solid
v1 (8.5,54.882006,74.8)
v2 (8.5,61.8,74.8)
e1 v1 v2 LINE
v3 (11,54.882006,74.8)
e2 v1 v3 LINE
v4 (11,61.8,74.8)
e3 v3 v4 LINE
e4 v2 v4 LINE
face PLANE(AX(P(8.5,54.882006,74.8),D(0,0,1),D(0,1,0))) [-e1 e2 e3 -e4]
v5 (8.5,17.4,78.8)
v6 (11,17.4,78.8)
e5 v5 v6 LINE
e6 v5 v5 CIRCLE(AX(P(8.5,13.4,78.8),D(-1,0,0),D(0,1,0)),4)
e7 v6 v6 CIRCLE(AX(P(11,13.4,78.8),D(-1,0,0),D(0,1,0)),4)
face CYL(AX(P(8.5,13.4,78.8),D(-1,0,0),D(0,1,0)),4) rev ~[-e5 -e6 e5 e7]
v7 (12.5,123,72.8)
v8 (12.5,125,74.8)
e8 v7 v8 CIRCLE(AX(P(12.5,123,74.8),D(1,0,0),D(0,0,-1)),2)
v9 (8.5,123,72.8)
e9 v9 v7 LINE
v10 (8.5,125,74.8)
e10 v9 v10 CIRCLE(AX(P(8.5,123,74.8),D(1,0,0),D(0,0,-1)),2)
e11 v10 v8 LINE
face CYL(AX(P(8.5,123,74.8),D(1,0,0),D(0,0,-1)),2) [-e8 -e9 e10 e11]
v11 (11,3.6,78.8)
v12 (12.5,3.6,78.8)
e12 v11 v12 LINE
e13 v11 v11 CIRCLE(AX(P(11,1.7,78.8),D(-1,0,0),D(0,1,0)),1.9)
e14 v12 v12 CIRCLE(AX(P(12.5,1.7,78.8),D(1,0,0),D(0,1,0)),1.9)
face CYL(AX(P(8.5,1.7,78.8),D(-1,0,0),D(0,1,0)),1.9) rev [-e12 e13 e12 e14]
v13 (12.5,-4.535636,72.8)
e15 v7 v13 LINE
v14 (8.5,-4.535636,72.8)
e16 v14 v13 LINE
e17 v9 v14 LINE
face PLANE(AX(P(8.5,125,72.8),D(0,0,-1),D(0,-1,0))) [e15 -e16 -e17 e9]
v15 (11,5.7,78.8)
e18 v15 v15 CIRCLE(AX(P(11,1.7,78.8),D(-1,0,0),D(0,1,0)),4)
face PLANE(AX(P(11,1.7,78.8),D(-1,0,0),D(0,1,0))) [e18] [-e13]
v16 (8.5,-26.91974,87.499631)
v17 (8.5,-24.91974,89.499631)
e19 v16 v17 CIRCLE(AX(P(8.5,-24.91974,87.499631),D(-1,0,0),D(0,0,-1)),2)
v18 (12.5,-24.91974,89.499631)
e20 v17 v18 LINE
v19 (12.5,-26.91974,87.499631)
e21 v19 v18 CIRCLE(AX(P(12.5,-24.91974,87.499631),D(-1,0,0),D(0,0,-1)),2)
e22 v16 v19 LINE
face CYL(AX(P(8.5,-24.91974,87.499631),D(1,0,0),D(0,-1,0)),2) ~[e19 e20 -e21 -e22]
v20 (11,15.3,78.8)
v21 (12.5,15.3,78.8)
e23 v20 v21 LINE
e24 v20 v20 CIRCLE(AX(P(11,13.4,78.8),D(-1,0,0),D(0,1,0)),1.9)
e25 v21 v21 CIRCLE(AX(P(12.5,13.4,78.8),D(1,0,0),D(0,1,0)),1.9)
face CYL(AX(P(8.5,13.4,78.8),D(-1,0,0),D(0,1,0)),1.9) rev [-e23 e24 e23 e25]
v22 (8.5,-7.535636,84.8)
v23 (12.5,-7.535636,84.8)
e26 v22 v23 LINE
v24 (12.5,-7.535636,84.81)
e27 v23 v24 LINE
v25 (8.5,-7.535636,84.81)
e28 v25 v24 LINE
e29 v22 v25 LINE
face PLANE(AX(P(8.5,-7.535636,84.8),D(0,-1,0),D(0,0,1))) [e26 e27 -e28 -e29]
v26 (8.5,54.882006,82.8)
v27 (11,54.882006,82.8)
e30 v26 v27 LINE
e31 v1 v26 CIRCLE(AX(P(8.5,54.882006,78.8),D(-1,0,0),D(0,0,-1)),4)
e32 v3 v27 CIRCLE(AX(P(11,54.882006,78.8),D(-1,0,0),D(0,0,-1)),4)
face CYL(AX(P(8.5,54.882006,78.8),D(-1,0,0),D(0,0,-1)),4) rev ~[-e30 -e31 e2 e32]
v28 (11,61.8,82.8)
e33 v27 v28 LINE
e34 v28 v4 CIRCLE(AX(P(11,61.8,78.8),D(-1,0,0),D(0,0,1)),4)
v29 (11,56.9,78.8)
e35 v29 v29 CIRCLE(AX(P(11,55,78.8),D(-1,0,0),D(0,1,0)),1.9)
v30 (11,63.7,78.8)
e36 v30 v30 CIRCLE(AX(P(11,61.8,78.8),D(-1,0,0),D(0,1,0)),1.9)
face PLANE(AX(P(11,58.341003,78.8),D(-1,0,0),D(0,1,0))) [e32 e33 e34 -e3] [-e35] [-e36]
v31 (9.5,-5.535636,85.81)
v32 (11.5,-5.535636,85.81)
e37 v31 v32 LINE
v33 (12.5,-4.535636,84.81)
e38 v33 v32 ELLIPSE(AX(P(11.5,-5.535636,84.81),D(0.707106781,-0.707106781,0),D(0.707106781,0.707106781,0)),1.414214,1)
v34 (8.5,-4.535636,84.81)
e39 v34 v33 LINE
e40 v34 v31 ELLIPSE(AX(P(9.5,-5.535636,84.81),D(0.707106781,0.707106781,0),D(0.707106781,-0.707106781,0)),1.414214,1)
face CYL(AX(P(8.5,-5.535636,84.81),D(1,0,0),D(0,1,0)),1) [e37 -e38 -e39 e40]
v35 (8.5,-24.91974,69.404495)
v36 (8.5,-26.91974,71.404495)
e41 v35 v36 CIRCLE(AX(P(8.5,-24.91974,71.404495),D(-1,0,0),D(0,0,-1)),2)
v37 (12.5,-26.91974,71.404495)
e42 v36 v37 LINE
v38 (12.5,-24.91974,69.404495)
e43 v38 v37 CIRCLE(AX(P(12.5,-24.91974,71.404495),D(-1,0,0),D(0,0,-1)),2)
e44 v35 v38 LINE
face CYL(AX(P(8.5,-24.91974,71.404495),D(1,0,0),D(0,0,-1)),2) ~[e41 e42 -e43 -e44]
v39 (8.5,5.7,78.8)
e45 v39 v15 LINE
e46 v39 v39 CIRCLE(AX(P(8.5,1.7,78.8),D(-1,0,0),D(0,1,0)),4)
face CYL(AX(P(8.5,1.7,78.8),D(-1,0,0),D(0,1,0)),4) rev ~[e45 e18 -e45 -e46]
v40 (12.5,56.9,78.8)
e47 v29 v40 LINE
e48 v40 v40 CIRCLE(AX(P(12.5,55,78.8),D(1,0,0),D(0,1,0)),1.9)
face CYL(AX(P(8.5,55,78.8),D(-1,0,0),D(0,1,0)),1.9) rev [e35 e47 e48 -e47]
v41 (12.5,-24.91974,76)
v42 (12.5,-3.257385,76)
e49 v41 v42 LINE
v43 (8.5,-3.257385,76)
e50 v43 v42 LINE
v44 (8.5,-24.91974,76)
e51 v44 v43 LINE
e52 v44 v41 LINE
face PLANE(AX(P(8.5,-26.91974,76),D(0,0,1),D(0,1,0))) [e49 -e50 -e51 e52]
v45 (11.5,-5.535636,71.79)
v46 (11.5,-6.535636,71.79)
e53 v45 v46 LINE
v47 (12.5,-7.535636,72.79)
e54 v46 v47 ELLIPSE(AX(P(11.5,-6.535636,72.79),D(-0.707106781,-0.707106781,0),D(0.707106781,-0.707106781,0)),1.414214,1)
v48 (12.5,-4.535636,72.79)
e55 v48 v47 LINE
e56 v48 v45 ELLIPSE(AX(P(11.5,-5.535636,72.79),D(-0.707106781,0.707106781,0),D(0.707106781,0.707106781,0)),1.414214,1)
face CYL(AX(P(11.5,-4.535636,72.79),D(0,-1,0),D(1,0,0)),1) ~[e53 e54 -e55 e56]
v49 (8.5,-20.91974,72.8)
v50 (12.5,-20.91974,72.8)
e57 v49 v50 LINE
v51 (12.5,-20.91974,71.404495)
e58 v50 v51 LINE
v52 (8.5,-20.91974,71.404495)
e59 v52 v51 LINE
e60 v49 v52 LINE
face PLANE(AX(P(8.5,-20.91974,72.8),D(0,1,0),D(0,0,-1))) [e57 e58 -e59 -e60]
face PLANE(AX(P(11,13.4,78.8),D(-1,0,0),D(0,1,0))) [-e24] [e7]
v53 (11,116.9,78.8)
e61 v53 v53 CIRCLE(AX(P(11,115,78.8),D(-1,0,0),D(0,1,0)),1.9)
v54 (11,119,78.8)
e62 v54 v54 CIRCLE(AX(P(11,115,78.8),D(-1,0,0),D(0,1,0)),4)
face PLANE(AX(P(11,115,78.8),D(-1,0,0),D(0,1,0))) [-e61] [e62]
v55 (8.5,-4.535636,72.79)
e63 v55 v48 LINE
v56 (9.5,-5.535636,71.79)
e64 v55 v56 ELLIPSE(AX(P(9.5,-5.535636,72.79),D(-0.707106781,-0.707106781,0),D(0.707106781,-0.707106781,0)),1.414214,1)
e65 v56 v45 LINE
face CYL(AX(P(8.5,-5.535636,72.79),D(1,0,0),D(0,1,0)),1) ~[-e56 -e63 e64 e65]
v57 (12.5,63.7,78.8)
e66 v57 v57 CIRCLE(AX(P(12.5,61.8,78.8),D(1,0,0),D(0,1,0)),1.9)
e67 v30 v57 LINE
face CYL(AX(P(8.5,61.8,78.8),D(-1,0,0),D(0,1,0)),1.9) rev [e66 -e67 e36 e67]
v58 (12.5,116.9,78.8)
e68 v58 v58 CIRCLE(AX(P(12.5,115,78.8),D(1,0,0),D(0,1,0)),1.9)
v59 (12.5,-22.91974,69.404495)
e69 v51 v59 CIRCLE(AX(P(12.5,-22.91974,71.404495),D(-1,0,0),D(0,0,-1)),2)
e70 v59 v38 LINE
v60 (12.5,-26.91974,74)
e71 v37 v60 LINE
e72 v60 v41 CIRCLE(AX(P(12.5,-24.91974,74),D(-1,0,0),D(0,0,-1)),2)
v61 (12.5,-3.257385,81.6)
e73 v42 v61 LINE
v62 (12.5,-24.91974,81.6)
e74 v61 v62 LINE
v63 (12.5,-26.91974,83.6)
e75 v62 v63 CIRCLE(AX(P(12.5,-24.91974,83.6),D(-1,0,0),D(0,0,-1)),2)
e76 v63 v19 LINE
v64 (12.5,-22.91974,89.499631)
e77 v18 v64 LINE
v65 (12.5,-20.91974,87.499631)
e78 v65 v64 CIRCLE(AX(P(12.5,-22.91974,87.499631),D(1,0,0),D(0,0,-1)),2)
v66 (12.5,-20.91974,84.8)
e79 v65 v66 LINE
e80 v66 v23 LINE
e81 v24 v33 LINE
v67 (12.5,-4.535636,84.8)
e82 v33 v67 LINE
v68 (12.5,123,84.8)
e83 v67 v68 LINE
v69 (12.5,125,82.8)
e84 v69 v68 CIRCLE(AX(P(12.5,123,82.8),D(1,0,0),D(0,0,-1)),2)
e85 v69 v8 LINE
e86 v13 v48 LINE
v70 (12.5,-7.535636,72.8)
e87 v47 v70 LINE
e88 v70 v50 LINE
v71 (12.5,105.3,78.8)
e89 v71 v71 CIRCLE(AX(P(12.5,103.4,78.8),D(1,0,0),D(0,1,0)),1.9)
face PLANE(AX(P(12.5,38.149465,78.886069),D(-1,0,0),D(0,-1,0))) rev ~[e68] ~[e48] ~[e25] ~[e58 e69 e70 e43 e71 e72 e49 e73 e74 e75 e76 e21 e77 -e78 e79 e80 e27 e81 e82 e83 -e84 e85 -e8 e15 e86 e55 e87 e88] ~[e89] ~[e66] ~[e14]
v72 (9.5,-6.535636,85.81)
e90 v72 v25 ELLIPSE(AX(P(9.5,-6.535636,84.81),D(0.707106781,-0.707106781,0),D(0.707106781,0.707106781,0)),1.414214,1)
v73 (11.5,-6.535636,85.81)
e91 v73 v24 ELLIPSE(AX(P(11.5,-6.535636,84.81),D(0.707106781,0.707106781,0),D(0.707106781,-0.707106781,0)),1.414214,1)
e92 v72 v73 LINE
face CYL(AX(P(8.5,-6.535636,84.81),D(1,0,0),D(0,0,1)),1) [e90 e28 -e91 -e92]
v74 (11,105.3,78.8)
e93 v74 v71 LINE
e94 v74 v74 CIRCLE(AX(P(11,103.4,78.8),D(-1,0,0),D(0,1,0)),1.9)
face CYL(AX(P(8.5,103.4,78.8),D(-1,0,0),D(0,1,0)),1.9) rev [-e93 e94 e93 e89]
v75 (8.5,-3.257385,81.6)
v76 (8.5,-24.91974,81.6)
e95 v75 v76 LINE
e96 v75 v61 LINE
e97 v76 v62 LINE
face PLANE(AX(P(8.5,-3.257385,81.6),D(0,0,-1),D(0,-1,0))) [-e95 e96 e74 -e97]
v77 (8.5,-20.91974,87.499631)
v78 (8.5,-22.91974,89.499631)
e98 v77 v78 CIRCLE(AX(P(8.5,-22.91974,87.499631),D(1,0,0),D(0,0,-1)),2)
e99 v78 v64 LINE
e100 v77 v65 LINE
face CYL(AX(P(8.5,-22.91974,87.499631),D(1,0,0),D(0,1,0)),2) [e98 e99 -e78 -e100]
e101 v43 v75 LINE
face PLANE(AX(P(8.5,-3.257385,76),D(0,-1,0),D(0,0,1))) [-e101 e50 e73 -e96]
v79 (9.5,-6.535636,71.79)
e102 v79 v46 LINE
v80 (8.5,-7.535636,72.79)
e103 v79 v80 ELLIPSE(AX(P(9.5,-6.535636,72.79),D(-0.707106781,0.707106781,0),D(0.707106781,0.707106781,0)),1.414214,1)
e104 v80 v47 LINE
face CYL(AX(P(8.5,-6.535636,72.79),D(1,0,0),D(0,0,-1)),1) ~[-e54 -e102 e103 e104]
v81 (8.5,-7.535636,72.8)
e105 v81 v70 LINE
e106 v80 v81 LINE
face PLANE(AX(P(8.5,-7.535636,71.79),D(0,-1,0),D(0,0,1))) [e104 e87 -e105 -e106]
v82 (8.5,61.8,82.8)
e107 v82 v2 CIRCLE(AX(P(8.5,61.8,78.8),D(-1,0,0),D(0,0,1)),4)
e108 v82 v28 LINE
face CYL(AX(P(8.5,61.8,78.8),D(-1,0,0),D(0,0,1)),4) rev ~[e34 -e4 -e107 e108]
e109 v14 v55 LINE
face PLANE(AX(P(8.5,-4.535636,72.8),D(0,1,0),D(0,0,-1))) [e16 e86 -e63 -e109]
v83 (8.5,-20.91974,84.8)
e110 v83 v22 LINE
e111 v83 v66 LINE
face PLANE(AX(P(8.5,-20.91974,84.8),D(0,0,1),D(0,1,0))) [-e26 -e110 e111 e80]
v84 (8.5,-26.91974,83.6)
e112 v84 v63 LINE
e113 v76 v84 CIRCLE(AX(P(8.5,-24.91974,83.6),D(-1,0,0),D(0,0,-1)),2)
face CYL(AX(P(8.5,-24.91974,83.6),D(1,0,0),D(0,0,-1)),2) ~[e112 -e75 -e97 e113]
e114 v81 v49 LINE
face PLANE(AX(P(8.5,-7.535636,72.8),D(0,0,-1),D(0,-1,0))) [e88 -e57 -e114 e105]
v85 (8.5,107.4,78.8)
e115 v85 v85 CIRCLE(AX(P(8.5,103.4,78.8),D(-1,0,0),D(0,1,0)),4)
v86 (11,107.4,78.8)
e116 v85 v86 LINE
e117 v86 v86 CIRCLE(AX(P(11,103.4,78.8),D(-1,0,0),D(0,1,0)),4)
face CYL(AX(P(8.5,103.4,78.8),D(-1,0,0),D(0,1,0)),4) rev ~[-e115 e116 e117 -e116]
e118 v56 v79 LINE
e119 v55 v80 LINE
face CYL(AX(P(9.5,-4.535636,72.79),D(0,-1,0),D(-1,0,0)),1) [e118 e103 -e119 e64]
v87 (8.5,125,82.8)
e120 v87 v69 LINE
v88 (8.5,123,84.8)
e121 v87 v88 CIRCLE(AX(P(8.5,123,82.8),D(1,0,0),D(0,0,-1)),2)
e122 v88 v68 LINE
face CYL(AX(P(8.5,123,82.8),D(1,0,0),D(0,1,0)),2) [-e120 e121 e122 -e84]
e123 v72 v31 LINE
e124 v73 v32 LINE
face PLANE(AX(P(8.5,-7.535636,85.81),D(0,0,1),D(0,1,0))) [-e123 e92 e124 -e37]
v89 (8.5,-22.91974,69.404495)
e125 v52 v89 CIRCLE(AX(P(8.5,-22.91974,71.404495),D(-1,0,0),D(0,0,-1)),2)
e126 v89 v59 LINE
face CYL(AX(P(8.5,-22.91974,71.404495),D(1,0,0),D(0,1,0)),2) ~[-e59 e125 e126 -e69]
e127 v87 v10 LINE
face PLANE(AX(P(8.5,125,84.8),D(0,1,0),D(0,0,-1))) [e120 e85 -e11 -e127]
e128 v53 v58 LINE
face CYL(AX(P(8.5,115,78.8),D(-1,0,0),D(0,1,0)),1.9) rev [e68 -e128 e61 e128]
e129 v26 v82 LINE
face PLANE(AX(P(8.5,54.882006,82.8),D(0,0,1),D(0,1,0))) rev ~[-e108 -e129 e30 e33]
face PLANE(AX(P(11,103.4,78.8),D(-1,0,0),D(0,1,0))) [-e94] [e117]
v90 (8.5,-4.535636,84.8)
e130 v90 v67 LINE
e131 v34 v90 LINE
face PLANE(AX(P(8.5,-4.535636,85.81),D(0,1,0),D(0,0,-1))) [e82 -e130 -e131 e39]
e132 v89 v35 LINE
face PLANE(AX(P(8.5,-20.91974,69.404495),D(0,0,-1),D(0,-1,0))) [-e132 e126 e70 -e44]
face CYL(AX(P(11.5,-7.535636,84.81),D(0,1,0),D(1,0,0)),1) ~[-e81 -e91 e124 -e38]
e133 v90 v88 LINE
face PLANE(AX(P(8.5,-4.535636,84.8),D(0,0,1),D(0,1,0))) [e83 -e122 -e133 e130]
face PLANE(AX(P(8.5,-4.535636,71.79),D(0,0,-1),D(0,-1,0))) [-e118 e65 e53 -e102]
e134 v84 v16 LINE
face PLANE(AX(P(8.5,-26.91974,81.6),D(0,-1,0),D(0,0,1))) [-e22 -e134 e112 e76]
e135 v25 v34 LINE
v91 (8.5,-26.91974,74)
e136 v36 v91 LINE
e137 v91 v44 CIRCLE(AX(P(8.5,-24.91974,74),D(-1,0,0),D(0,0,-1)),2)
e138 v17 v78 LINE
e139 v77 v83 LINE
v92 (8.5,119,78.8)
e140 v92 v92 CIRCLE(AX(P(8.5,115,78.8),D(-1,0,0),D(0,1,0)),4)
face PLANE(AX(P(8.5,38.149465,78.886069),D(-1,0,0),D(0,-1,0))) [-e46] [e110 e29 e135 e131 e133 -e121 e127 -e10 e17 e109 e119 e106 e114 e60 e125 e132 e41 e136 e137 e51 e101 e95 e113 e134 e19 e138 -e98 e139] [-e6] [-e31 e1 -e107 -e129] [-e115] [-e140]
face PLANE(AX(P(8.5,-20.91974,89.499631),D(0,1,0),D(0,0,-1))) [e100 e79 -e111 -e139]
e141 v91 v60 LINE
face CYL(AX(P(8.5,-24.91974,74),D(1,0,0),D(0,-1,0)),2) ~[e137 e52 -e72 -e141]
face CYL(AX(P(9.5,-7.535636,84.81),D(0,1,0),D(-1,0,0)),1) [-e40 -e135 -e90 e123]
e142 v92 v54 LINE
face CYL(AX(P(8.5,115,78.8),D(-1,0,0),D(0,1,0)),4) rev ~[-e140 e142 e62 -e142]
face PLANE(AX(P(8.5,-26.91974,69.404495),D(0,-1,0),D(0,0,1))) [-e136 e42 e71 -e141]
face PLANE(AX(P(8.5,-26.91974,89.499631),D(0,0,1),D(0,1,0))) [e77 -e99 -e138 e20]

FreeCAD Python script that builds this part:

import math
import FreeCAD as App
import Part
import Sketcher
from FreeCAD import Vector


def edges_at(feature, points):
    """Names of the edges that pass closest to the given points."""
    edges = feature.Shape.Edges
    near = lambda p: min(range(len(edges)), key=lambda i: edges[i].distToShape(Part.Vertex(*p))[0])
    return sorted({f"Edge{near(p) + 1}" for p in points})


def add_polygon(sketch, points):
    """Adds a closed chain of lines whose ends are joined by coincident constraints."""
    first, n = sketch.GeometryCount, len(points)
    for a, b in zip(points, points[1:] + points[:1]):
        sketch.addGeometry(Part.LineSegment(App.Vector(*a, 0), App.Vector(*b, 0)), False)
    for i in range(n):
        sketch.addConstraint(Sketcher.Constraint("Coincident", first + i, 2, first + (i + 1) % n, 1))

doc = App.newDocument("Part")
params = doc.addObject("Spreadsheet::Sheet", "Params")
for row, (alias, value) in enumerate([
    ("sketch1_diameter", "3.8 mm"),
    ("sketch1_width", "3 mm"),
    ("sketch1_width2", "6 mm"),
    ("sketch1_height", "12 mm"),
    ("sketch1_height2", "5.6 mm"),
    ("pad1_length", "4 mm"),
    ("sketch2_diameter", "8 mm"),
    ("pocket1_length", "2.5 mm"),
    ("fillet_radius", "2 mm"),
    ("fillet2_radius", "1 mm"),
    ("fillet3_radius", "2 mm"),
], start=1):
    params.set(f"A{row}", alias)
    params.set(f"B{row}", "=" + value)
    params.setAlias(f"B{row}", alias)

body = doc.addObject("PartDesign::Body", "Body")

# Sketch on XZ plane
sketch1 = body.newObject("Sketcher::SketchObject", "Sketch")
sketch1.AttachmentSupport = (doc.getObject("XZ_Plane"), [""])
sketch1.MapMode = "FlatFace"
add_polygon(sketch1, [(-125.535636, 0), (4, 0), (4, 12), (-125.535636, 12), (-125.535636, 13.01), (-128.535636, 13.01), (-128.535636, 12), (-141.91974, 12), (-141.91974, 16.699631), (-147.91974, 16.699631), (-147.91974, 8.8), (-124.257385, 8.8), (-124.257385, 3.2), (-147.91974, 3.2), (-147.91974, -3.395505), (-141.91974, -3.395505), (-141.91974, 0), (-128.535636, 0), (-128.535636, -1.01), (-125.535636, -1.01)])  # lines 0-19
sketch1.addGeometry(Part.Circle(Vector(-6, 6, 0), Vector(0, 0, 1), 1.9), False)  # 20
sketch1.addGeometry(Part.Circle(Vector(-17.6, 6, 0), Vector(0, 0, 1), 1.9), False)  # 21
sketch1.addGeometry(Part.Circle(Vector(-59.2, 6, 0), Vector(0, 0, 1), 1.9), False)  # 22
sketch1.addGeometry(Part.Circle(Vector(-66, 6, 0), Vector(0, 0, 1), 1.9), False)  # 23
sketch1.addGeometry(Part.Circle(Vector(-107.6, 6, 0), Vector(0, 0, 1), 1.9), False)  # 24
sketch1.addGeometry(Part.Circle(Vector(-119.3, 6, 0), Vector(0, 0, 1), 1.9), False)  # 25
sketch1.addConstraint([
    Sketcher.Constraint("Horizontal", 0),
    Sketcher.Constraint("Vertical", 1),
    Sketcher.Constraint("Horizontal", 2),
    Sketcher.Constraint("Vertical", 3),
    Sketcher.Constraint("Horizontal", 4),
    Sketcher.Constraint("Vertical", 5),
    Sketcher.Constraint("Horizontal", 6),
    Sketcher.Constraint("Vertical", 7),
    Sketcher.Constraint("Horizontal", 8),
    Sketcher.Constraint("Vertical", 9),
    Sketcher.Constraint("Horizontal", 10),
    Sketcher.Constraint("Vertical", 11),
    Sketcher.Constraint("Horizontal", 12),
    Sketcher.Constraint("Vertical", 13),
    Sketcher.Constraint("Horizontal", 14),
    Sketcher.Constraint("Vertical", 15),
    Sketcher.Constraint("Horizontal", 16),
    Sketcher.Constraint("Vertical", 17),
    Sketcher.Constraint("Horizontal", 18),
    Sketcher.Constraint("Vertical", 19),
    Sketcher.Constraint("Equal", 20, 21),
    Sketcher.Constraint("Equal", 21, 22),
    Sketcher.Constraint("Equal", 22, 23),
    Sketcher.Constraint("Equal", 23, 24),
    Sketcher.Constraint("Equal", 24, 25),
    Sketcher.Constraint("PointOnObject", 0, 2, -1),
    Sketcher.Constraint("PointOnObject", 15, 2, -1),
    Sketcher.Constraint("Horizontal", 20, 3, 21, 3),
    Sketcher.Constraint("Horizontal", 21, 3, 22, 3),
    Sketcher.Constraint("Horizontal", 22, 3, 23, 3),
    Sketcher.Constraint("Horizontal", 23, 3, 24, 3),
    Sketcher.Constraint("Horizontal", 24, 3, 25, 3),
    Sketcher.Constraint("Horizontal", 2, 2, 5, 2),
    Sketcher.Constraint("Vertical", 9, 2, 12, 2),
    Sketcher.Constraint("Vertical", 7, 2, 14, 2),
    Sketcher.Constraint("Vertical", 5, 2, 16, 2),
    Sketcher.Constraint("Vertical", 3, 2, 18, 2),
    Sketcher.Constraint("Equal", 5, 17),
    Sketcher.Constraint("Diameter", 20, 3.8),
    Sketcher.Constraint("DistanceX", 4, 2, 4, 1, 3.0),
    Sketcher.Constraint("DistanceX", 8, 2, 8, 1, 6.0),
    Sketcher.Constraint("DistanceY", 1, 1, 1, 2, 12.0),
    Sketcher.Constraint("DistanceY", 11, 2, 11, 1, 5.6),
    Sketcher.Constraint("DistanceX", 20, 3, -1, 1, 6.0),
    Sketcher.Constraint("DistanceY", -1, 1, 20, 3, 6.0),
    Sketcher.Constraint("DistanceX", 23, 3, -1, 1, 66.0),
    Sketcher.Constraint("DistanceX", -1, 1, 0, 2, 4.0),
    Sketcher.Constraint("DistanceX", 24, 3, 21, 3, 90.0),
    Sketcher.Constraint("DistanceY", 3, 1, 3, 2, 1.01),
    Sketcher.Constraint("DistanceX", 21, 3, -1, 1, 17.6),
    Sketcher.Constraint("DistanceX", 22, 3, -1, 1, 59.2),
    Sketcher.Constraint("DistanceX", 25, 3, -1, 1, 119.3),
    Sketcher.Constraint("DistanceY", -1, 1, 9, 2, 8.8),
    Sketcher.Constraint("DistanceY", 7, 1, 7, 2, 4.699631),
    Sketcher.Constraint("DistanceX", 0, 1, 0, 2, 129.535636),
    Sketcher.Constraint("DistanceX", 6, 2, 6, 1, 13.384104),
    Sketcher.Constraint("DistanceX", 10, 1, 10, 2, 23.662355),
    Sketcher.Constraint("DistanceY", 13, 2, 13, 1, 6.595505),
])
sketch1.setExpression("Constraints[58]", "Params.sketch1_diameter")
sketch1.setExpression("Constraints[59]", "Params.sketch1_width")
sketch1.setExpression("Constraints[60]", "Params.sketch1_width2")
sketch1.setExpression("Constraints[61]", "Params.sketch1_height")
sketch1.setExpression("Constraints[62]", "Params.sketch1_height2")
pad1 = body.newObject("PartDesign::Pad", "Pad")
pad1.Profile = sketch1
pad1.setExpression("Length", "Params.pad1_length")

# Sketch on XZ plane
sketch2 = body.newObject("Sketcher::SketchObject", "Sketch001")
sketch2.AttachmentSupport = (doc.getObject("XZ_Plane"), [""])
sketch2.MapMode = "FlatFace"
sketch2.addGeometry([
    Part.Circle(Vector(-107.6, 6, 0), Vector(0, 0, 1), 4),  # 0
    Part.Circle(Vector(-6, 6, 0), Vector(0, 0, 1), 4),  # 1
    Part.Circle(Vector(-17.6, 6, 0), Vector(0, 0, 1), 4),  # 2
    Part.Circle(Vector(-119.3, 6, 0), Vector(0, 0, 1), 4),  # 3
    Part.ArcOfCircle(Part.Circle(Vector(-66.117994, 6, 0), Vector(0, 0, 1), 4), math.radians(90), math.radians(270)),  # 4
    Part.LineSegment(Vector(-66.117994, 10, 0), Vector(-59.2, 10, 0)),  # 5
    Part.ArcOfCircle(Part.Circle(Vector(-59.2, 6, 0), Vector(0, 0, 1), 4), math.radians(-90), math.radians(90)),  # 6
    Part.LineSegment(Vector(-59.2, 2, 0), Vector(-66.117994, 2, 0)),  # 7
], False)
sketch2.addConstraint([
    Sketcher.Constraint("Tangent", 4, 1, 5, 1),
    Sketcher.Constraint("Tangent", 5, 2, 6, 2),
    Sketcher.Constraint("Tangent", 6, 1, 7, 1),
    Sketcher.Constraint("Tangent", 7, 2, 4, 2),
    Sketcher.Constraint("Horizontal", 5),
    Sketcher.Constraint("Horizontal", 7),
    Sketcher.Constraint("Equal", 0, 1),
    Sketcher.Constraint("Equal", 1, 2),
    Sketcher.Constraint("Equal", 2, 3),
    Sketcher.Constraint("Equal", 3, 4),
    Sketcher.Constraint("Horizontal", 0, 3, 1, 3),
    Sketcher.Constraint("Horizontal", 1, 3, 2, 3),
    Sketcher.Constraint("Horizontal", 2, 3, 3, 3),
    Sketcher.Constraint("Horizontal", 3, 3, 4, 3),
    Sketcher.Constraint("Diameter", 0, 8.0),
    Sketcher.Constraint("DistanceY", -1, 1, 0, 3, 6.0),
    Sketcher.Constraint("DistanceX", 1, 3, -1, 1, 6.0),
    Sketcher.Constraint("DistanceX", 0, 3, 2, 3, 90.0),
    Sketcher.Constraint("DistanceX", 0, 3, -1, 1, 107.6),
    Sketcher.Constraint("DistanceX", 3, 3, -1, 1, 119.3),
    Sketcher.Constraint("DistanceX", 6, 3, -1, 1, 59.2),
    Sketcher.Constraint("DistanceX", 5, 1, 5, 2, 6.917994),
])
sketch2.setExpression("Constraints[14]", "Params.sketch2_diameter")
pocket1 = body.newObject("PartDesign::Pocket", "Pocket")
pocket1.Profile = sketch2
pocket1.setExpression("Length", "Params.pocket1_length")
pocket1.Reversed = True
doc.recompute()

fillet = body.newObject("PartDesign::Fillet", "Fillet")
fillet.Base = (pocket1, edges_at(pocket1, [(4, -2, 12), (4, -2, 0)]))
fillet.setExpression("Radius", "Params.fillet_radius")
doc.recompute()

fillet2 = body.newObject("PartDesign::Fillet", "Fillet001")
fillet2.Base = (fillet, edges_at(fillet, [
    (-125.536, -2, -1.01),
    (-128.536, -2, -1.01),
    (-127.036, 0, -1.01),
    (-127.036, -4, -1.01),
    (-128.536, -2, 13.01),
    (-125.536, -2, 13.01),
    (-127.036, 0, 13.01),
    (-127.036, -4, 13.01),
]))
fillet2.setExpression("Radius", "Params.fillet2_radius")
doc.recompute()

fillet3 = body.newObject("PartDesign::Fillet", "Fillet002")
fillet3.Base = (fillet2, edges_at(fillet2, [
    (-141.92, -2, 16.7),
    (-147.92, -2, 16.7),
    (-147.92, -2, 8.8),
    (-147.92, -2, 3.2),
    (-147.92, -2, -3.396),
    (-141.92, -2, -3.396),
]))
fillet3.setExpression("Radius", "Params.fillet3_radius")
body2 = doc.addObject("PartDesign::Body", "Body001")
doc.recompute()

body.Placement = App.Placement(Vector(8.5, 121, 72.8), App.Rotation(Vector(0, 0, -1), 270))
boolean = body2.newObject("PartDesign::Boolean", "Boolean")
boolean.Type = "Fuse"
boolean.addObjects([body])

doc.recompute()
